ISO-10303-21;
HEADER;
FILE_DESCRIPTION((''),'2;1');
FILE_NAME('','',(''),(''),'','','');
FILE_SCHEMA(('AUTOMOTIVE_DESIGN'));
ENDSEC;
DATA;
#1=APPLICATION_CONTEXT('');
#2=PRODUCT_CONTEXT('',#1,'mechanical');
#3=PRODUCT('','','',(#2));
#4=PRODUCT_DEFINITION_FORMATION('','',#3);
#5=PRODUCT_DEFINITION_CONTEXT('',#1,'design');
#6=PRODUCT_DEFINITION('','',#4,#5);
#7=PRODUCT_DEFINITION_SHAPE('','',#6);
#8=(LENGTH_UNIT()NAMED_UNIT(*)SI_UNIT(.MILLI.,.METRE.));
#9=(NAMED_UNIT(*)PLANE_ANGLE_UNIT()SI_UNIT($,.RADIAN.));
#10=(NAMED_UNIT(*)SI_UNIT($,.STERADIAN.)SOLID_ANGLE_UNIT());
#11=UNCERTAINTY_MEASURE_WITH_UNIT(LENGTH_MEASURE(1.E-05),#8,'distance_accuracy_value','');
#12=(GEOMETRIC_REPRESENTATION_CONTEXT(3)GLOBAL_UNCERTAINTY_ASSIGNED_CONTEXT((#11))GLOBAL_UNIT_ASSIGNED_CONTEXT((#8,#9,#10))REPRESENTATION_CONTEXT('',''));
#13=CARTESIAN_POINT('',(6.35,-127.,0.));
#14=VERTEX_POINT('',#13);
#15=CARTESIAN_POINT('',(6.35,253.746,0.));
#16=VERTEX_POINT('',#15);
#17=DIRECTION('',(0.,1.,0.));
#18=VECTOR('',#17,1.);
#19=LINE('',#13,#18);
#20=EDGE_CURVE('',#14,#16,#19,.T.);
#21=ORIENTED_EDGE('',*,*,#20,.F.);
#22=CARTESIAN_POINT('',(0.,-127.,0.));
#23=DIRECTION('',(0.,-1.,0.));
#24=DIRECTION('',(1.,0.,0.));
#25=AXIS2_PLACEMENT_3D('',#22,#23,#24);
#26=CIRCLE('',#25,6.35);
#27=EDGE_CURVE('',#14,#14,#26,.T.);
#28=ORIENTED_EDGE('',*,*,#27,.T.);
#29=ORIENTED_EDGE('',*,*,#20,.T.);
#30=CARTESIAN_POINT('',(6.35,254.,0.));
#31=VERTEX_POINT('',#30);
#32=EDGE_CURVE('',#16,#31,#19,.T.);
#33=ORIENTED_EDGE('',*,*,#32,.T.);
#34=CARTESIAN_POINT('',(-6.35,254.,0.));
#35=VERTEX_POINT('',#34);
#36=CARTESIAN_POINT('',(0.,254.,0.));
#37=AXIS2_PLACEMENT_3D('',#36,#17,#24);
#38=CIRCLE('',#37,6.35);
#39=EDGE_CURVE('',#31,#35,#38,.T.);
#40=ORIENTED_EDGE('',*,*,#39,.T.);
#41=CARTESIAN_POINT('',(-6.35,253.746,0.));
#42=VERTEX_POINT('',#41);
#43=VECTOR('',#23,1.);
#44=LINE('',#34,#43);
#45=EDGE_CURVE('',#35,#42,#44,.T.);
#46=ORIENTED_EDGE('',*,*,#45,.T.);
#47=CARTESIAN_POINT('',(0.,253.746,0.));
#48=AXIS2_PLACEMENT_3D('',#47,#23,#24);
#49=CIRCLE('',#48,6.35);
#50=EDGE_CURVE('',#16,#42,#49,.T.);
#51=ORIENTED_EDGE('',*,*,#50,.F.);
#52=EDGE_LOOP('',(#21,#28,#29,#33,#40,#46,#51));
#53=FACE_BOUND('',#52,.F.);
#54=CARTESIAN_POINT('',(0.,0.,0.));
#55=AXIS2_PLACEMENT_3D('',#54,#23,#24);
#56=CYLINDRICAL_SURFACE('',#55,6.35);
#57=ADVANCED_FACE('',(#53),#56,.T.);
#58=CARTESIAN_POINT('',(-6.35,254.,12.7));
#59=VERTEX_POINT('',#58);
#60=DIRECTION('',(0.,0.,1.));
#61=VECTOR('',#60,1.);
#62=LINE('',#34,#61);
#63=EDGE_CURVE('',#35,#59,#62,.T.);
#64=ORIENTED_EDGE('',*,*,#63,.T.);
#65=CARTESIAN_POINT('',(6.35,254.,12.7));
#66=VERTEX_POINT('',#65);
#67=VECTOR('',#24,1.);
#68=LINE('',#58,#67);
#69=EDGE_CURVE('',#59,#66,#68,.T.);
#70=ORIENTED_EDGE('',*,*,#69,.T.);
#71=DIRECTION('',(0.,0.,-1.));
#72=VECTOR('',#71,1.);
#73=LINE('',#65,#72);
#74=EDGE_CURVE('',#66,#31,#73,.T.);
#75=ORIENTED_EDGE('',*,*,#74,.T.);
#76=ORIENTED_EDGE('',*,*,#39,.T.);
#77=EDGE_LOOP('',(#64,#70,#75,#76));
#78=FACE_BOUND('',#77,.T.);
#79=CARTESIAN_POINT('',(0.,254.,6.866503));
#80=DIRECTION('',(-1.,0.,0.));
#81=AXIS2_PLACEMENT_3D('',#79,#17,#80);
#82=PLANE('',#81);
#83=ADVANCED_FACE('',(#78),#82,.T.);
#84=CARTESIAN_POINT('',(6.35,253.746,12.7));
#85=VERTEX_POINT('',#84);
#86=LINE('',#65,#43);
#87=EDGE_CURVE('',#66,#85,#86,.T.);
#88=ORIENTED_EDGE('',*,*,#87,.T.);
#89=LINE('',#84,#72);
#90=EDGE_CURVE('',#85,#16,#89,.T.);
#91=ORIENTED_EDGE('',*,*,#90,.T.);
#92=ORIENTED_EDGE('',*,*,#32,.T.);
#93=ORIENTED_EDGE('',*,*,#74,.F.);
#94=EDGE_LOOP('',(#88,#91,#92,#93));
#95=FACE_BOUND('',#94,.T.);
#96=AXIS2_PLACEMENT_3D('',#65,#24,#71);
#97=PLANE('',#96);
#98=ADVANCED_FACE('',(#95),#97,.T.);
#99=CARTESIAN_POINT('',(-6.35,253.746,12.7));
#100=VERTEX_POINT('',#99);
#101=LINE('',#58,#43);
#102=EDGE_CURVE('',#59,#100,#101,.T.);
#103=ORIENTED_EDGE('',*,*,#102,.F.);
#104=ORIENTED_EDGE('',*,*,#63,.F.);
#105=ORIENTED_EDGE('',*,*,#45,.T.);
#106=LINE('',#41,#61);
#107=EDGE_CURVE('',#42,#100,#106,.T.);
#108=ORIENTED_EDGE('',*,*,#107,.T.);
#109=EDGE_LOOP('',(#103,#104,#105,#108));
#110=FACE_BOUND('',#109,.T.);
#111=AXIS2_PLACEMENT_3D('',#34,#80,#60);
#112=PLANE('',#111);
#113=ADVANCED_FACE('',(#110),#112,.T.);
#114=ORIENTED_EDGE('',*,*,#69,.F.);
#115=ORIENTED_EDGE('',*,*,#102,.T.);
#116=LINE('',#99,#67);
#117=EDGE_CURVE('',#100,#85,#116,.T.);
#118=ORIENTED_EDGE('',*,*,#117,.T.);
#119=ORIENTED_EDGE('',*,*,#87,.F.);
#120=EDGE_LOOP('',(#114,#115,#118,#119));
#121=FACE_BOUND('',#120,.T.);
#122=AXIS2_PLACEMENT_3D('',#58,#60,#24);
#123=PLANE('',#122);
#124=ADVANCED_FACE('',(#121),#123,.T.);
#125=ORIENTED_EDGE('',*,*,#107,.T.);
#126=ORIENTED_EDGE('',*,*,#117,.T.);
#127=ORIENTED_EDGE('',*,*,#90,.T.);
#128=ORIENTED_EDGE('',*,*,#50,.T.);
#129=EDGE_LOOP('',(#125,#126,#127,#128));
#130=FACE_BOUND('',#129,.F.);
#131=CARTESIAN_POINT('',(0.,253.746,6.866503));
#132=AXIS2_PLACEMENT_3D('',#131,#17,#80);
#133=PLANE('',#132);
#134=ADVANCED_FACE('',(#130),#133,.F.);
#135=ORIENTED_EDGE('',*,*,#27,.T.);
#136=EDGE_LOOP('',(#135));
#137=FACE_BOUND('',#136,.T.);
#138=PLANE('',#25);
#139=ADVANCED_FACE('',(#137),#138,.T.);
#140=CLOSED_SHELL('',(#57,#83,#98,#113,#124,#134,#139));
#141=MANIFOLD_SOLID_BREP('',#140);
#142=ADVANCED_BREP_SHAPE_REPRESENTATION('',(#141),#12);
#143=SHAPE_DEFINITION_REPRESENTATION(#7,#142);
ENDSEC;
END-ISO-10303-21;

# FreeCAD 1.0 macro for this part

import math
import FreeCAD as App
import Part
import Sketcher
from FreeCAD import Vector
Q = App.Units.Quantity

doc = App.newDocument("Part")
body = doc.addObject("PartDesign::Body", "Body")

sketch1 = body.newObject("Sketcher::SketchObject", "Sketch")
sketch1.AttachmentSupport = (doc.getObject("XZ_Plane"), [""])
sketch1.MapMode = "FlatFace"
sketch1.addGeometry(Part.Circle(Vector(0, 0, 0), Vector(0, 0, 1), 6), False)
sketch1.addConstraint([
    Sketcher.Constraint("Coincident", 0, 3, -1, 1),
    Sketcher.Constraint("Diameter", 0, Q("0.5 in")),
])
pad1 = body.newObject("PartDesign::Pad", "Pad")
pad1.Profile = sketch1
pad1.Length = Q("5 in")

sketch2 = body.newObject("Sketcher::SketchObject", "Sketch001")
sketch2.AttachmentSupport = (doc.getObject("XZ_Plane"), [""])
sketch2.MapMode = "FlatFace"
sketch2.addGeometry(Part.Circle(Vector(0, 0, 0), Vector(0, 0, 1), 6), False)
sketch2.addConstraint([
    Sketcher.Constraint("Coincident", 0, 3, -1, 1),
    Sketcher.Constraint("Diameter", 0, Q("0.5 in")),
])
pad2 = body.newObject("PartDesign::Pad", "Pad001")
pad2.Profile = sketch2
pad2.Length = Q("10 in")
pad2.Reversed = True

sketch3 = body.newObject("Sketcher::SketchObject", "Sketch002")
sketch3.AttachmentSupport = (doc.getObject("XZ_Plane"), [""])
sketch3.MapMode = "FlatFace"
sketch3.AttachmentOffset = App.Placement(Vector(0, 0, -10 * 25.4), App.Rotation())
sketch3.addGeometry([
    Part.LineSegment(Vector(-6, 13, 0), Vector(6, 13, 0)),
    Part.LineSegment(Vector(6, 13, 0), Vector(6, 0, 0)),
    Part.ArcOfCircle(Part.Circle(Vector(0, 0, 0), Vector(0, 0, 1), 6), math.radians(0), math.radians(180)),
    Part.LineSegment(Vector(-6, 0, 0), Vector(-6, 13, 0)),
], False)
sketch3.addConstraint([
    Sketcher.Constraint("Coincident", 0, 2, 1, 1),
    Sketcher.Constraint("Tangent", 1, 2, 2, 1),
    Sketcher.Constraint("Tangent", 2, 2, 3, 1),
    Sketcher.Constraint("Coincident", 3, 2, 0, 1),
    Sketcher.Constraint("Horizontal", 0),
    Sketcher.Constraint("Vertical", 1),
    Sketcher.Constraint("Vertical", 3),
    Sketcher.Constraint("Coincident", 2, 3, -1, 1),
    Sketcher.Constraint("Equal", 0, 1),
    Sketcher.Constraint("Radius", 2, Q("0.25 in")),
])
pad3 = body.newObject("PartDesign::Pad", "Pad002")
pad3.Profile = sketch3
pad3.Length = Q("0.01 in")

doc.recompute()
